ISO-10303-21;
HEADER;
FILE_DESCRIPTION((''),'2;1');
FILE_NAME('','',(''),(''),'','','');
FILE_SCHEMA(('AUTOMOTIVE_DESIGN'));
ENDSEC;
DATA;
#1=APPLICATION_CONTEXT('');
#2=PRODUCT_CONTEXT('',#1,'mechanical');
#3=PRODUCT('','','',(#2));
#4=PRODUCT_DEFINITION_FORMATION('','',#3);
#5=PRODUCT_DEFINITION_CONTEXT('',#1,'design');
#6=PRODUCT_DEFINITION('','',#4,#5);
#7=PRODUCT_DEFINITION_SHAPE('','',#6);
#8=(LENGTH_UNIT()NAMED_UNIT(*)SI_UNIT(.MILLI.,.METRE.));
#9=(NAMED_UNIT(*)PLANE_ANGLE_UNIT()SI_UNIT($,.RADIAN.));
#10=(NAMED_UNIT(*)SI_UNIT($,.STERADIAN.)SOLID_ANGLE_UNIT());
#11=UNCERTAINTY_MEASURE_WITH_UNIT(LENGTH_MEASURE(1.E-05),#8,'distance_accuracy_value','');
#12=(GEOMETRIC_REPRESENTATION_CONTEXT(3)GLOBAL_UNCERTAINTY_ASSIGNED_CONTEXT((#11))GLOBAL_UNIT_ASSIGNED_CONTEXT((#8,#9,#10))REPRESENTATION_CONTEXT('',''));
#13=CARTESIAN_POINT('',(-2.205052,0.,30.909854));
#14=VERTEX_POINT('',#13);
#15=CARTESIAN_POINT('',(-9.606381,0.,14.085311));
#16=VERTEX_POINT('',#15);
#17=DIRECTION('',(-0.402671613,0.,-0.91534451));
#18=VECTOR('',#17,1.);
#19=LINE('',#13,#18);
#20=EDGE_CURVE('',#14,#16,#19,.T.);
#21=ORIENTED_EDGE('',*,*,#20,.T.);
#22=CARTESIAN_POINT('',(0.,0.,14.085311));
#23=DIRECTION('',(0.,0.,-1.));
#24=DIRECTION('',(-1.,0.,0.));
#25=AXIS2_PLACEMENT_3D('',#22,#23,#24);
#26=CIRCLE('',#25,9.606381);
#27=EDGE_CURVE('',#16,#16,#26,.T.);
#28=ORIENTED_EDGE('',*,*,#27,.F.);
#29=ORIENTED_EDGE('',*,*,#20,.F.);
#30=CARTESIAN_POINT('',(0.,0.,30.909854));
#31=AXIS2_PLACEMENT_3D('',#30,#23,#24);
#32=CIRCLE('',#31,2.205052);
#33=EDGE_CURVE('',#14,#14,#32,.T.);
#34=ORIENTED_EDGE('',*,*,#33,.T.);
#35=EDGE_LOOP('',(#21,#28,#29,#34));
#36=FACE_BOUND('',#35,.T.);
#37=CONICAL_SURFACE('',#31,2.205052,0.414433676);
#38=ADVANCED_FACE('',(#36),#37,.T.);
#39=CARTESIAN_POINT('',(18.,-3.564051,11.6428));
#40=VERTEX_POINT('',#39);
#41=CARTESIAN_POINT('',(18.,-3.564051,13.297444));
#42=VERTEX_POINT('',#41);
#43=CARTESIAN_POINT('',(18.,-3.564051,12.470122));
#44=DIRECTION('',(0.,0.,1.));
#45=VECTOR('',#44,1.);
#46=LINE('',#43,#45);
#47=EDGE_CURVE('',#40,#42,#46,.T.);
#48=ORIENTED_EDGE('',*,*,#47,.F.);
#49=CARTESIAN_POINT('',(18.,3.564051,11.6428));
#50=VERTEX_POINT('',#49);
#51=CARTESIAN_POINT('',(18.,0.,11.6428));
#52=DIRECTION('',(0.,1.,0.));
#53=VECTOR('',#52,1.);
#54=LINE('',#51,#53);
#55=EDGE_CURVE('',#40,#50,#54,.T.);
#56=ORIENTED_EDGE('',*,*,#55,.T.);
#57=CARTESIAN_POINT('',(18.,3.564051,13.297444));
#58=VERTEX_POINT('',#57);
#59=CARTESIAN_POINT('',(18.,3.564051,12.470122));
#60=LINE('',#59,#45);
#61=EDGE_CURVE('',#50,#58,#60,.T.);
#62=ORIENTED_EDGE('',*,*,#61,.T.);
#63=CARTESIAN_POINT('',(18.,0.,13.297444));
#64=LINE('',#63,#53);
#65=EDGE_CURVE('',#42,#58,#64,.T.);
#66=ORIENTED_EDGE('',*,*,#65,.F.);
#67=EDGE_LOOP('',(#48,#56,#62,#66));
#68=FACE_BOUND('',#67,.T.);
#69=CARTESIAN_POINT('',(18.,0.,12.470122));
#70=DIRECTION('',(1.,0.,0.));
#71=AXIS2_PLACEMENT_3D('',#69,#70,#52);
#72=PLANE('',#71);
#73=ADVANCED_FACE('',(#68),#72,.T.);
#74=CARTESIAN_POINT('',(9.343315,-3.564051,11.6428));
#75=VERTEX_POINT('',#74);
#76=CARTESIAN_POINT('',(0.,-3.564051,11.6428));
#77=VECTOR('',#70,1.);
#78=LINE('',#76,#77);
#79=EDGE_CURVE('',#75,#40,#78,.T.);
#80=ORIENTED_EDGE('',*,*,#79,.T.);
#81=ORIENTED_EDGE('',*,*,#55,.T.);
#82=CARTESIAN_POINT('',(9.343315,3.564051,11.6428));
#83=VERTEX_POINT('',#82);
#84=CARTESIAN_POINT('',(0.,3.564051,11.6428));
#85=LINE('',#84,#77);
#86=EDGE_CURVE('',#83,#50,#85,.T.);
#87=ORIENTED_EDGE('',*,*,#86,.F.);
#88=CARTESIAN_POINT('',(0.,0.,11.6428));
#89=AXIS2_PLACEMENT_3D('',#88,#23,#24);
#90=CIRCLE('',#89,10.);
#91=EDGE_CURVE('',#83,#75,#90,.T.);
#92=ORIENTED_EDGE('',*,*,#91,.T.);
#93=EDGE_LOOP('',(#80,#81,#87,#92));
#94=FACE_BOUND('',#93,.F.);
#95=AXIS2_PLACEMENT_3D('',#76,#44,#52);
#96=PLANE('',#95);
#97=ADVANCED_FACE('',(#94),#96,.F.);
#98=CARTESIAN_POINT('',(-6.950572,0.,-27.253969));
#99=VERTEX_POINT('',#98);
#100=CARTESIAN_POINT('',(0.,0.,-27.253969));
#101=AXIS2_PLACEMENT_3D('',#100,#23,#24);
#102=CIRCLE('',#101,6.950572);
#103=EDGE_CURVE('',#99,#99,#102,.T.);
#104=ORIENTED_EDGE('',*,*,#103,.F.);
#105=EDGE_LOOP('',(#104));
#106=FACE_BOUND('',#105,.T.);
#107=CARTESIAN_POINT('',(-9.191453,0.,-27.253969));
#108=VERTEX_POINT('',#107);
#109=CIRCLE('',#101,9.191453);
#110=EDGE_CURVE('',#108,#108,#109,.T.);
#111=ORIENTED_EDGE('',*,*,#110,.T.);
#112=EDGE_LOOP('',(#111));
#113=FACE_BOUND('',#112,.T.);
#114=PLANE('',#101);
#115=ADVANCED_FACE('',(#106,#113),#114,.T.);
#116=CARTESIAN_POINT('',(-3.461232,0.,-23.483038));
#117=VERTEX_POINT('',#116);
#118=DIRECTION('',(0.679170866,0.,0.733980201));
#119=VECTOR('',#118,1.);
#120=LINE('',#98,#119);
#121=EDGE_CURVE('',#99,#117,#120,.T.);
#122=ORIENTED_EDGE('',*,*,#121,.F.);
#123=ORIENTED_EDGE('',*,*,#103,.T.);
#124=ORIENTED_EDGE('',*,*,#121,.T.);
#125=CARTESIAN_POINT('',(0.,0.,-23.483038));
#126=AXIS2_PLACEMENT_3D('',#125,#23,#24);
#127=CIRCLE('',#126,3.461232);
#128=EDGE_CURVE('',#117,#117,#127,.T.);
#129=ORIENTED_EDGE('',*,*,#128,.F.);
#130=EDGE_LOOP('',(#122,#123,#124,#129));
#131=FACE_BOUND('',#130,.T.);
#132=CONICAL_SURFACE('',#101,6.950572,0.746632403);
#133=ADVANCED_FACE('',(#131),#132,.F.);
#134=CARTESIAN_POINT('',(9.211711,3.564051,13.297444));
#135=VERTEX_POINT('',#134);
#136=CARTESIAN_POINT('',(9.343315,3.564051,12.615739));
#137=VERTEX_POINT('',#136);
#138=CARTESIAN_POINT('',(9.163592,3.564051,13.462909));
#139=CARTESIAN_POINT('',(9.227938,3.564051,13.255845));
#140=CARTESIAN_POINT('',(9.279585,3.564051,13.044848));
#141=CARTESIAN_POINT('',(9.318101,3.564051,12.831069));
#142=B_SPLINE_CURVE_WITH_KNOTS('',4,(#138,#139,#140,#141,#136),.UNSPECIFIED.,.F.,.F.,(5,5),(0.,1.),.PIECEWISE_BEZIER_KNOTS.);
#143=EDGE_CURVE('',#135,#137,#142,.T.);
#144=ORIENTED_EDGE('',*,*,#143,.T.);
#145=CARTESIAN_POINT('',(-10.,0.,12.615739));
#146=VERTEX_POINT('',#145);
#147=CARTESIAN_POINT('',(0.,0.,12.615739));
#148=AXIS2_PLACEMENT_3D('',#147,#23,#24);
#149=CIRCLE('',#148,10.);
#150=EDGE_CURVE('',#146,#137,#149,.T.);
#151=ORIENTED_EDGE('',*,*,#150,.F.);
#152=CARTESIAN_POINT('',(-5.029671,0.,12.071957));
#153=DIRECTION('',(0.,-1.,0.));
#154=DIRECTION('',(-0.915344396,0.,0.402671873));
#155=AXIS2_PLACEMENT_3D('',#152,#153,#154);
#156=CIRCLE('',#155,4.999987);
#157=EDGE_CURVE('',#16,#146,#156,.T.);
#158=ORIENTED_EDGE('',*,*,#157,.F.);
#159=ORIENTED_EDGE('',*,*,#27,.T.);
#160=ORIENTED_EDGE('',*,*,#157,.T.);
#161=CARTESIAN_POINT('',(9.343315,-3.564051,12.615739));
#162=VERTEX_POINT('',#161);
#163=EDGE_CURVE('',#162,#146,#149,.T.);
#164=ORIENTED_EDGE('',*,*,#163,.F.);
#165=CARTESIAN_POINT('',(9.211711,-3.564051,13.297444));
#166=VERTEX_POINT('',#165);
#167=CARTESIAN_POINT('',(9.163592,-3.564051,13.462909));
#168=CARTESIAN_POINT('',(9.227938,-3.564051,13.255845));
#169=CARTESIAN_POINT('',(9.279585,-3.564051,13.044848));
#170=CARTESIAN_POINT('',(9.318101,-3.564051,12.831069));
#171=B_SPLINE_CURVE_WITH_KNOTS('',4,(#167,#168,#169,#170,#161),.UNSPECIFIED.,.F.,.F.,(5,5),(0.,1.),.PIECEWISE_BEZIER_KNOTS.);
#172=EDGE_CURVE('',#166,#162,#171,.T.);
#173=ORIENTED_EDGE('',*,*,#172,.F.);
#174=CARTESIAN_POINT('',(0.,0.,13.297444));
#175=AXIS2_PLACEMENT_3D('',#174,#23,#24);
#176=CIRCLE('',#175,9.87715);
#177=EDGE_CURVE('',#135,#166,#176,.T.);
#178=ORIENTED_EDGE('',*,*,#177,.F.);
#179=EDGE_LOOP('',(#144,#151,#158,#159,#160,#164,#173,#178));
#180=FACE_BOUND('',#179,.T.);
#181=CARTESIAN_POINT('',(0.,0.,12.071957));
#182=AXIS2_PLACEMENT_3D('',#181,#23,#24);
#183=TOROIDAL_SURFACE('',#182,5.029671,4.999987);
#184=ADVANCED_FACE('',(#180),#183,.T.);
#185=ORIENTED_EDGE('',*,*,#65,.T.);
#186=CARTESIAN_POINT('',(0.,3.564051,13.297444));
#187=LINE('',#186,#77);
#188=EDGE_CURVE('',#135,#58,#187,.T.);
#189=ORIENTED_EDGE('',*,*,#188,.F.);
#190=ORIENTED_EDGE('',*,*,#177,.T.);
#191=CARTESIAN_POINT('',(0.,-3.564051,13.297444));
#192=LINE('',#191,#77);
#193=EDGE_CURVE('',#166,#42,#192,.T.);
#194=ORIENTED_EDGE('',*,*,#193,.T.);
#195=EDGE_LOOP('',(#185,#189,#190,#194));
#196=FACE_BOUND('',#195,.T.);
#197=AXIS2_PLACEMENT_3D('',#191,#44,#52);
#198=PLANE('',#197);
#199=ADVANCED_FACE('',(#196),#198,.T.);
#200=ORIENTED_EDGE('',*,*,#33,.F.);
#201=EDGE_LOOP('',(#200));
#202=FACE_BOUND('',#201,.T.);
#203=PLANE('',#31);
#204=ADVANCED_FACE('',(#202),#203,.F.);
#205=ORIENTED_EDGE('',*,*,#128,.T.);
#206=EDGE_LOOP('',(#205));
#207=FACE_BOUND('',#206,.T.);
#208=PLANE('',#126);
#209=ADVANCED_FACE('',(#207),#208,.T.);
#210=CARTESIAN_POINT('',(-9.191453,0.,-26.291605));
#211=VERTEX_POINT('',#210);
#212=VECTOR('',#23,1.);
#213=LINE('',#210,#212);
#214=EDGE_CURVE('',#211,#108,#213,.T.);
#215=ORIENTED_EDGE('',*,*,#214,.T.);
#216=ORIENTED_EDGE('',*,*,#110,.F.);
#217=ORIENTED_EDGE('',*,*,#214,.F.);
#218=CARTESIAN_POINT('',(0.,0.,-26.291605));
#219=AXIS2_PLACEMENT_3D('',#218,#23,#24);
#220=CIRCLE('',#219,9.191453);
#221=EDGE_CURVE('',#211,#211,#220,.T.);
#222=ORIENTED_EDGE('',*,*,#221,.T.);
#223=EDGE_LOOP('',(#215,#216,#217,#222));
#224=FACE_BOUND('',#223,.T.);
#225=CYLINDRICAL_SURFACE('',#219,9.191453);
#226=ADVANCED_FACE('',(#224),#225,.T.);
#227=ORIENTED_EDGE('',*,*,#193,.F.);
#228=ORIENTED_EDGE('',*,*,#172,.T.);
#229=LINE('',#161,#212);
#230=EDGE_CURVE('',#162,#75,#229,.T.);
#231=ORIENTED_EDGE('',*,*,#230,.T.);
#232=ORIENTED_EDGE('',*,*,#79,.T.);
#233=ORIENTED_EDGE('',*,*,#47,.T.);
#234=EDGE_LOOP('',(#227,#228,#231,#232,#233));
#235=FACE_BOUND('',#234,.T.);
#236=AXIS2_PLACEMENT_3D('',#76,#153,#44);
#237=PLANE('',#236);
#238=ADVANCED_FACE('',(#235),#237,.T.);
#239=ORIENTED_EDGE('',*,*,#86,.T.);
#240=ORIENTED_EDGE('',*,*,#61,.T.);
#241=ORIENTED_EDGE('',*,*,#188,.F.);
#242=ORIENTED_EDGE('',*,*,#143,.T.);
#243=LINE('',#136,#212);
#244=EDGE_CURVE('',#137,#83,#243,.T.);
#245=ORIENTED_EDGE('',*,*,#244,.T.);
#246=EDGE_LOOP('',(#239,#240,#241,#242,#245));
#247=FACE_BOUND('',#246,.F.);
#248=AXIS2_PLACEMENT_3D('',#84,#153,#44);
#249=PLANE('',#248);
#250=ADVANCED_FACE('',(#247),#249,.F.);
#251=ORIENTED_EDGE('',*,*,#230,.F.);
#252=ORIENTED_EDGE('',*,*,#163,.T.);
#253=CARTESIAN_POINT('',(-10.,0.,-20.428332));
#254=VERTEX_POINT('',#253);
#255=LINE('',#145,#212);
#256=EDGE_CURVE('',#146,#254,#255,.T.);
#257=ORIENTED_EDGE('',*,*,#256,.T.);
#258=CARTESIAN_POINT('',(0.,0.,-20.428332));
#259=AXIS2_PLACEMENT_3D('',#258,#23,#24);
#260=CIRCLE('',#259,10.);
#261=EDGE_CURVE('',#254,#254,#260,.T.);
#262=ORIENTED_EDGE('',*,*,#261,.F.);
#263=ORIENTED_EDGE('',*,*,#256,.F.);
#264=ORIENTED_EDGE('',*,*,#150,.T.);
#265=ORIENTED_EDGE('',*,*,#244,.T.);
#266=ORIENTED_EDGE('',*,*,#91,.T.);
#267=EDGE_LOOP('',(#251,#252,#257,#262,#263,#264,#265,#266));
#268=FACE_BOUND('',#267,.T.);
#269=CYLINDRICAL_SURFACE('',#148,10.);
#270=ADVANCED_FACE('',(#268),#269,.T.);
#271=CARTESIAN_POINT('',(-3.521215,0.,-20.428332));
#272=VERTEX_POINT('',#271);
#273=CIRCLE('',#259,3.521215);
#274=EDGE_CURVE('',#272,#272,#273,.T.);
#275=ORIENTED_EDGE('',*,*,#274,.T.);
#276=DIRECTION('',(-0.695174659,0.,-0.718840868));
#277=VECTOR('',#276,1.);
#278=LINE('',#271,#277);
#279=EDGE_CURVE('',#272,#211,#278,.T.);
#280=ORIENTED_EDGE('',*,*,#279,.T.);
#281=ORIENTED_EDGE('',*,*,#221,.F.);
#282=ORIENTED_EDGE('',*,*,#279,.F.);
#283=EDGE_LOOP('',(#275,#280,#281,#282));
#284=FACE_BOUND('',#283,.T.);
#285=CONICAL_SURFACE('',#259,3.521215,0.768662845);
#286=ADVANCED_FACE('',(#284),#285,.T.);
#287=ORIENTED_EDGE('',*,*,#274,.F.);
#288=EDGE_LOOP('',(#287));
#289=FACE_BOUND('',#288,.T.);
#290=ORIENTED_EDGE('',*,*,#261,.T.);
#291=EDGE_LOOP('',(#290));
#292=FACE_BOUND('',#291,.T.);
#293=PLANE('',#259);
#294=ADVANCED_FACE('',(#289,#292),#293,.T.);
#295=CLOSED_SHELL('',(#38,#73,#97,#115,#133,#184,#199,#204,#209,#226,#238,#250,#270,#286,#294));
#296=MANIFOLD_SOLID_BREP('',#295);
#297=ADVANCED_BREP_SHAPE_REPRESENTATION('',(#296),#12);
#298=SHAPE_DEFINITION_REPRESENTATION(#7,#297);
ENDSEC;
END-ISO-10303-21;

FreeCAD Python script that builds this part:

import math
import FreeCAD as App
import Part
import Sketcher
Q = App.Units.Quantity

doc = App.newDocument("Part")
body = doc.addObject("PartDesign::Body", "Body")

# Sketch on XZ plane
sketch1 = body.newObject("Sketcher::SketchObject", "Sketch")
sketch1.AttachmentSupport = (doc.getObject("XZ_Plane"), [""])
sketch1.MapMode = "FlatFace"
sketch1.addGeometry(Part.LineSegment(App.Vector(0, 30.9, 0), App.Vector(-2.2, 30.9, 0)), False)
sketch1.addGeometry(Part.LineSegment(App.Vector(-2.2, 30.9, 0), App.Vector(-9.6, 14.1, 0)), False)
sketch1.addGeometry(Part.ArcOfCircle(Part.Circle(App.Vector(-5, 12.1, 0), App.Vector(0, 0, 1), 5), math.radians(156.25), math.radians(173.76)), False)
sketch1.addGeometry(Part.LineSegment(App.Vector(-10, 12.6, 0), App.Vector(-10, -20.4, 0)), False)
sketch1.addGeometry(Part.LineSegment(App.Vector(-10, -20.4, 0), App.Vector(-3.5, -20.4, 0)), False)
sketch1.addGeometry(Part.LineSegment(App.Vector(-3.5, -20.4, 0), App.Vector(-9.2, -26.3, 0)), False)
sketch1.addGeometry(Part.LineSegment(App.Vector(-9.2, -26.3, 0), App.Vector(-9.2, -27.3, 0)), False)
sketch1.addGeometry(Part.LineSegment(App.Vector(-9.2, -27.3, 0), App.Vector(-7, -27.3, 0)), False)
sketch1.addGeometry(Part.LineSegment(App.Vector(-7, -27.3, 0), App.Vector(-3.5, -23.5, 0)), False)
sketch1.addGeometry(Part.LineSegment(App.Vector(-3.5, -23.5, 0), App.Vector(0, -23.5, 0)), False)
sketch1.addGeometry(Part.LineSegment(App.Vector(0, -23.5, 0), App.Vector(0, 30.9, 0)), False)
sketch1.addConstraint(Sketcher.Constraint("Coincident", 0, 2, 1, 1))
sketch1.addConstraint(Sketcher.Constraint("Tangent", 1, 2, 2, 1))
sketch1.addConstraint(Sketcher.Constraint("Coincident", 2, 2, 3, 1))
sketch1.addConstraint(Sketcher.Constraint("Coincident", 3, 2, 4, 1))
sketch1.addConstraint(Sketcher.Constraint("Coincident", 4, 2, 5, 1))
sketch1.addConstraint(Sketcher.Constraint("Coincident", 5, 2, 6, 1))
sketch1.addConstraint(Sketcher.Constraint("Coincident", 6, 2, 7, 1))
sketch1.addConstraint(Sketcher.Constraint("Coincident", 7, 2, 8, 1))
sketch1.addConstraint(Sketcher.Constraint("Coincident", 8, 2, 9, 1))
sketch1.addConstraint(Sketcher.Constraint("Coincident", 9, 2, 10, 1))
sketch1.addConstraint(Sketcher.Constraint("Coincident", 10, 2, 0, 1))
sketch1.addConstraint(Sketcher.Constraint("Horizontal", 0))
sketch1.addConstraint(Sketcher.Constraint("Vertical", 3))
sketch1.addConstraint(Sketcher.Constraint("Horizontal", 4))
sketch1.addConstraint(Sketcher.Constraint("Vertical", 6))
sketch1.addConstraint(Sketcher.Constraint("Horizontal", 7))
sketch1.addConstraint(Sketcher.Constraint("Horizontal", 9))
sketch1.addConstraint(Sketcher.Constraint("Vertical", 10))
sketch1.addConstraint(Sketcher.Constraint("PointOnObject", 9, 2, -2))
sketch1.addConstraint(Sketcher.Constraint("DistanceX", 2, 2, -1, 1, Q("10 mm")))
sketch1.addConstraint(Sketcher.Constraint("Radius", 2, Q("4.999987 mm")))
sketch1.addConstraint(Sketcher.Constraint("DistanceX", 0, 2, 0, 1, Q("2.205052 mm")))
sketch1.addConstraint(Sketcher.Constraint("DistanceX", 7, 1, 7, 2, Q("2.240881 mm")))
sketch1.addConstraint(Sketcher.Constraint("DistanceX", 9, 1, 9, 2, Q("3.461232 mm")))
sketch1.addConstraint(Sketcher.Constraint("DistanceY", 3, 2, 3, 1, Q("33.044071 mm")))
sketch1.addConstraint(Sketcher.Constraint("DistanceX", 7, 2, 2, 3, Q("1.920901 mm")))
sketch1.addConstraint(Sketcher.Constraint("Distance", 1, Q("18.380558 mm")))
sketch1.addConstraint(Sketcher.Constraint("DistanceX", 4, 1, 4, 2, Q("6.478785 mm")))
sketch1.addConstraint(Sketcher.Constraint("DistanceY", 6, 2, 6, 1, Q("0.962364 mm")))
sketch1.addConstraint(Sketcher.Constraint("DistanceY", 10, 1, 10, 2, Q("54.392892 mm")))
sketch1.addConstraint(Sketcher.Constraint("DistanceX", 2, 3, -1, 1, Q("5.029671 mm")))
sketch1.addConstraint(Sketcher.Constraint("DistanceY", -1, 1, 1, 2, Q("14.085311 mm")))
sketch1.addConstraint(Sketcher.Constraint("DistanceY", 6, 2, -1, 1, Q("27.253969 mm")))
revolution = body.newObject("PartDesign::Revolution", "Revolution")
revolution.Profile = sketch1
revolution.ReferenceAxis = (sketch1, ["V_Axis"])
revolution.Angle = 360

# Sketch on YZ plane
sketch2 = body.newObject("Sketcher::SketchObject", "Sketch001")
sketch2.AttachmentSupport = (doc.getObject("YZ_Plane"), [""])
sketch2.MapMode = "FlatFace"
sketch2.addGeometry(Part.LineSegment(App.Vector(-3.6, 13.3, 0), App.Vector(-3.6, 11.6, 0)), False)
sketch2.addGeometry(Part.LineSegment(App.Vector(-3.6, 11.6, 0), App.Vector(3.6, 11.6, 0)), False)
sketch2.addGeometry(Part.LineSegment(App.Vector(3.6, 11.6, 0), App.Vector(3.6, 13.3, 0)), False)
sketch2.addGeometry(Part.LineSegment(App.Vector(3.6, 13.3, 0), App.Vector(-3.6, 13.3, 0)), False)
sketch2.addConstraint(Sketcher.Constraint("Coincident", 0, 2, 1, 1))
sketch2.addConstraint(Sketcher.Constraint("Coincident", 1, 2, 2, 1))
sketch2.addConstraint(Sketcher.Constraint("Coincident", 2, 2, 3, 1))
sketch2.addConstraint(Sketcher.Constraint("Coincident", 3, 2, 0, 1))
sketch2.addConstraint(Sketcher.Constraint("Vertical", 0))
sketch2.addConstraint(Sketcher.Constraint("Horizontal", 1))
sketch2.addConstraint(Sketcher.Constraint("Vertical", 2))
sketch2.addConstraint(Sketcher.Constraint("Horizontal", 3))
sketch2.addConstraint(Sketcher.Constraint("DistanceY", -1, 1, 0, 2, Q("11.6428 mm")))
sketch2.addConstraint(Sketcher.Constraint("DistanceX", 1, 1, 1, 2, Q("7.128102 mm")))
sketch2.addConstraint(Sketcher.Constraint("DistanceY", 0, 2, 0, 1, Q("1.654645 mm")))
sketch2.addConstraint(Sketcher.Constraint("DistanceX", 0, 2, -1, 1, Q("3.564051 mm")))
pad1 = body.newObject("PartDesign::Pad", "Pad")
pad1.Profile = sketch2
pad1.Length = 18

doc.recompute()
